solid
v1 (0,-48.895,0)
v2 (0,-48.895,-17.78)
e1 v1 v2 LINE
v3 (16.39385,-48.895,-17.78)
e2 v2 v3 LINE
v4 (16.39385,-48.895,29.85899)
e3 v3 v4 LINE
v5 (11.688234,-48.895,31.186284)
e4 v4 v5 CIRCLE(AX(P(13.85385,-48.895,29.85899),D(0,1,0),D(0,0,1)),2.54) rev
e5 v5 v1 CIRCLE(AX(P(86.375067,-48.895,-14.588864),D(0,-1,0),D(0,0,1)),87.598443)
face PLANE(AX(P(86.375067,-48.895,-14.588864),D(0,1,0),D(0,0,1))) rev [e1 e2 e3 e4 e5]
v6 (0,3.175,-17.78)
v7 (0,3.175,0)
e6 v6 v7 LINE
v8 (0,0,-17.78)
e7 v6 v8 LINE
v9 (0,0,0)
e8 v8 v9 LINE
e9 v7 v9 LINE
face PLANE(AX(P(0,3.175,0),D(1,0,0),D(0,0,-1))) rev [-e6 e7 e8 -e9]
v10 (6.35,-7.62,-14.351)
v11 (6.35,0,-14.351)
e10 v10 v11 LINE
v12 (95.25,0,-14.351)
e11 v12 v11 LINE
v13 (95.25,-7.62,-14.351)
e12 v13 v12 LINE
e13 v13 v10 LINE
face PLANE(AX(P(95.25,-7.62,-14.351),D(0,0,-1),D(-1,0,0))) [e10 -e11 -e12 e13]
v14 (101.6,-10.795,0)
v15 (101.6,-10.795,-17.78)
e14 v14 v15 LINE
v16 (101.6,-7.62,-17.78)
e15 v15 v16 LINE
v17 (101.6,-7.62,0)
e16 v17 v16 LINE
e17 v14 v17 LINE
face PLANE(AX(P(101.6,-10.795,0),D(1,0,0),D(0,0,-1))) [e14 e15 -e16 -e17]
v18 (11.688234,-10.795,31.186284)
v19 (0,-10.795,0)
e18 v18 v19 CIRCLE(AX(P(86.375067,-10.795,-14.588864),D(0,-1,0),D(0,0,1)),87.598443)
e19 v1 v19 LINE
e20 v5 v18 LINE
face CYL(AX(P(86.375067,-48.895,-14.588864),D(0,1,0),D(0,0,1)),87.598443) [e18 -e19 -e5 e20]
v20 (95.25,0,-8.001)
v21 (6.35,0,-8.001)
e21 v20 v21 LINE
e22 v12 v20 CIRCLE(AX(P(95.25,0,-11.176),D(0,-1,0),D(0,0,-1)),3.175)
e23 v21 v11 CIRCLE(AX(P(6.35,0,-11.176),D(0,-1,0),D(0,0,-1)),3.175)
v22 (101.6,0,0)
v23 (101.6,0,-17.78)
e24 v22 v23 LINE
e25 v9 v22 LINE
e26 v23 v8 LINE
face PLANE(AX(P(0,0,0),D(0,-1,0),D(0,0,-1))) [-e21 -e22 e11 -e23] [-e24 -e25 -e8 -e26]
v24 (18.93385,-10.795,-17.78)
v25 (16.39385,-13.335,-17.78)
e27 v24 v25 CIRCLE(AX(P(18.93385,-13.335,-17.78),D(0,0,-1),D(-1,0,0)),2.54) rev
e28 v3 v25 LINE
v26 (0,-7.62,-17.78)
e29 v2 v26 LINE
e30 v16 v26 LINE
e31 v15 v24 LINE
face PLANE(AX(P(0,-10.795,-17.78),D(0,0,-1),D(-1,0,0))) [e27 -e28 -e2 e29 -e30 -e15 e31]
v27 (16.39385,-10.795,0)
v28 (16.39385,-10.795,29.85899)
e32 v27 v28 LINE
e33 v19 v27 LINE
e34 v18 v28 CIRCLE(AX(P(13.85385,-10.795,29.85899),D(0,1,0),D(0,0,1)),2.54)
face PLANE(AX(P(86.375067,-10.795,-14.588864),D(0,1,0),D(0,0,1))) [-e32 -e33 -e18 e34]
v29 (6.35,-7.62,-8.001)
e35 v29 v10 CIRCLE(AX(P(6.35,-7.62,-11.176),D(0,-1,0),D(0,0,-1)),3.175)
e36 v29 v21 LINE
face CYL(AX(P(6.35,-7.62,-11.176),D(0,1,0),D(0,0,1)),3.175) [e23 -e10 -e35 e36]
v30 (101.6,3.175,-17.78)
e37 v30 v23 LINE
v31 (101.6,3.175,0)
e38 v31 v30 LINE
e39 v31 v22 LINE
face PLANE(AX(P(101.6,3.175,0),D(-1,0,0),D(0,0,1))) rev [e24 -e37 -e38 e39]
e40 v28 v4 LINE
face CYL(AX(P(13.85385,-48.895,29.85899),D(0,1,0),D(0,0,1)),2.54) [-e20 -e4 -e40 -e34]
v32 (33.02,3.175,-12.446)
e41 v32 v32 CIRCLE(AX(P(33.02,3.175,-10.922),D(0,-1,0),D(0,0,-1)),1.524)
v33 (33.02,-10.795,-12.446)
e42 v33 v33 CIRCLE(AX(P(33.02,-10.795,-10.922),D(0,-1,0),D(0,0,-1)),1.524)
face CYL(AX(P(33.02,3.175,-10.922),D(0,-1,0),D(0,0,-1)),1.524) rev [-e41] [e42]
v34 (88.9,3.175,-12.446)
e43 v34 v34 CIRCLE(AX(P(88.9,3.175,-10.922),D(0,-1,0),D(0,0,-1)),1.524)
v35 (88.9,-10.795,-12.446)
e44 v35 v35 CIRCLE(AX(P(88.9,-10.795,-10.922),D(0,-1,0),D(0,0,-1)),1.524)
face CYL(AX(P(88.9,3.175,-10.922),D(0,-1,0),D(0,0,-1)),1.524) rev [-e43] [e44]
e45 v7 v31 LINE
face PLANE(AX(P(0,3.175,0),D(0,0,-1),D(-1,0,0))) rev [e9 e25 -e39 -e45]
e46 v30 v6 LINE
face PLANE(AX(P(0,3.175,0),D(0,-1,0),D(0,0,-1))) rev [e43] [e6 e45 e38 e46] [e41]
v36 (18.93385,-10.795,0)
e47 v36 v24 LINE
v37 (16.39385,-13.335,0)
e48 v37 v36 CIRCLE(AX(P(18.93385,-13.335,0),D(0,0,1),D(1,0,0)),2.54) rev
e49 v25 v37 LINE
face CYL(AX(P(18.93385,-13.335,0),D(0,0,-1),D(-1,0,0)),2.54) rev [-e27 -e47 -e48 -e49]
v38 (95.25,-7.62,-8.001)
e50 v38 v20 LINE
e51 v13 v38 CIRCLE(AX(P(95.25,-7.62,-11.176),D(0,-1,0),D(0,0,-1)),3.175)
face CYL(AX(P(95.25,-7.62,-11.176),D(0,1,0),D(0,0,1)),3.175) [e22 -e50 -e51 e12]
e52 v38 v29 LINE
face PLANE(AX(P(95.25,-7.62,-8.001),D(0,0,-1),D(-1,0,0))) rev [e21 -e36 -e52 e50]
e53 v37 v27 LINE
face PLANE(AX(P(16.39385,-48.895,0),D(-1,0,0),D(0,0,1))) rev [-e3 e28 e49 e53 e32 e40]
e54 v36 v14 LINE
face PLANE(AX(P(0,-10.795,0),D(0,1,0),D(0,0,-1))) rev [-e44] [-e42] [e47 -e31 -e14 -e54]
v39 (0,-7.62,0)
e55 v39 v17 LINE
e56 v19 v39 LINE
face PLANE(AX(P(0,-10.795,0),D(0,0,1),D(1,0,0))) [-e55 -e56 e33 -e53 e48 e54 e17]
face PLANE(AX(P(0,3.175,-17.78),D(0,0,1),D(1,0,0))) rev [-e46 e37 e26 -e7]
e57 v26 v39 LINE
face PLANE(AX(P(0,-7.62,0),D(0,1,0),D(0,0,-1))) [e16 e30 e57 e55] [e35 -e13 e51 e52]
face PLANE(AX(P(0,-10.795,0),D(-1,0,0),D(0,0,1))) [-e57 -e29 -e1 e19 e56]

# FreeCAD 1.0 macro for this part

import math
import FreeCAD as App
import Part
import Sketcher
from FreeCAD import Vector
Q = App.Units.Quantity


def edges_at(feature, points):
    """Names of the edges that pass closest to the given points."""
    edges = feature.Shape.Edges
    near = lambda p: min(range(len(edges)), key=lambda i: edges[i].distToShape(Part.Vertex(*p))[0])
    return sorted({f"Edge{near(p) + 1}" for p in points})

doc = App.newDocument("Part")
body = doc.addObject("PartDesign::Body", "Body")

# Sketch on XZ plane
sketch1 = body.newObject("Sketcher::SketchObject", "Sketch")
sketch1.AttachmentSupport = (doc.getObject("XZ_Plane"), [""])
sketch1.MapMode = "FlatFace"
sketch1.addGeometry(Part.LineSegment(Vector(0, -18, 0), Vector(0, 0, 0)), False)
sketch1.addGeometry(Part.LineSegment(Vector(0, 0, 0), Vector(102, 0, 0)), False)
sketch1.addGeometry(Part.LineSegment(Vector(102, 0, 0), Vector(102, -18, 0)), False)
sketch1.addGeometry(Part.LineSegment(Vector(102, -18, 0), Vector(0, -18, 0)), False)
sketch1.addConstraint(Sketcher.Constraint("Coincident", 0, 2, 1, 1))
sketch1.addConstraint(Sketcher.Constraint("Coincident", 1, 2, 2, 1))
sketch1.addConstraint(Sketcher.Constraint("Coincident", 2, 2, 3, 1))
sketch1.addConstraint(Sketcher.Constraint("Coincident", 3, 2, 0, 1))
sketch1.addConstraint(Sketcher.Constraint("Vertical", 0))
sketch1.addConstraint(Sketcher.Constraint("Horizontal", 1))
sketch1.addConstraint(Sketcher.Constraint("Vertical", 2))
sketch1.addConstraint(Sketcher.Constraint("Horizontal", 3))
sketch1.addConstraint(Sketcher.Constraint("Coincident", 0, 2, -1, 1))
sketch1.addConstraint(Sketcher.Constraint("DistanceX", 1, 1, 1, 2, Q("4 in")))
sketch1.addConstraint(Sketcher.Constraint("DistanceY", 0, 1, 0, 2, Q("0.7 in")))
pad1 = body.newObject("PartDesign::Pad", "Pad")
pad1.Profile = sketch1
pad1.Length = Q("0.125 in")
pad1.Reversed = True

# Sketch on XZ plane
sketch2 = body.newObject("Sketcher::SketchObject", "Sketch001")
sketch2.AttachmentSupport = (doc.getObject("XZ_Plane"), [""])
sketch2.MapMode = "FlatFace"
sketch2.addGeometry(Part.LineSegment(Vector(6.3, -14.4, 0), Vector(95.2, -14.4, 0)), False)
sketch2.addGeometry(Part.ArcOfCircle(Part.Circle(Vector(95.2, -11.2, 0), Vector(0, 0, 1), 3.2), math.radians(-90), math.radians(90)), False)
sketch2.addGeometry(Part.LineSegment(Vector(95.2, -8, 0), Vector(6.3, -8, 0)), False)
sketch2.addGeometry(Part.ArcOfCircle(Part.Circle(Vector(6.3, -11.2, 0), Vector(0, 0, 1), 3.2), math.radians(90), math.radians(270)), False)
sketch2.addConstraint(Sketcher.Constraint("Tangent", 0, 2, 1, 1))
sketch2.addConstraint(Sketcher.Constraint("Tangent", 1, 2, 2, 1))
sketch2.addConstraint(Sketcher.Constraint("Tangent", 2, 2, 3, 1))
sketch2.addConstraint(Sketcher.Constraint("Tangent", 3, 2, 0, 1))
sketch2.addConstraint(Sketcher.Constraint("Horizontal", 0))
sketch2.addConstraint(Sketcher.Constraint("Horizontal", 2))
sketch2.addConstraint(Sketcher.Constraint("DistanceX", 0, 1, 0, 2, Q("3.5 in")))
sketch2.addConstraint(Sketcher.Constraint("Radius", 1, Q("0.125 in")))
sketch2.addConstraint(Sketcher.Constraint("DistanceX", -1, 1, 1, 3, Q("3.75 in")))
sketch2.addConstraint(Sketcher.Constraint("DistanceY", 1, 3, -1, 1, Q("0.44 in")))
pad2 = body.newObject("PartDesign::Pad", "Pad001")
pad2.Profile = sketch2
pad2.Length = Q("0.3 in")
doc.recompute()

datumplane = body.newObject("PartDesign::Plane", "DatumPlane")
datumplane.AttachmentSupport = (doc.getObject("XZ_Plane"), [""])
datumplane.MapMode = "FlatFace"
datumplane.AttachmentOffset = App.Placement(Vector(0, 0, 0.15 * 25.4), App.Rotation())
mirrored = body.newObject("PartDesign::Mirrored", "Mirrored")
mirrored.Originals = [pad1]
mirrored.MirrorPlane = (datumplane, [""])
body.Tip = mirrored

# Sketch on XZ plane
sketch3 = body.newObject("Sketcher::SketchObject", "Sketch002")
sketch3.AttachmentSupport = (doc.getObject("XZ_Plane"), [""])
sketch3.MapMode = "FlatFace"
sketch3.AttachmentOffset = App.Placement(Vector(0, 0, 0.425 * 25.4), App.Rotation())
sketch3.addGeometry(Part.LineSegment(Vector(0, -18, 0), Vector(16, -18, 0)), False)
sketch3.addGeometry(Part.LineSegment(Vector(16, -18, 0), Vector(16, 38, 0)), False)
sketch3.addGeometry(Part.ArcOfCircle(Part.Circle(Vector(86, -15, 0), Vector(0, 0, 1), 88), math.radians(143), math.radians(170)), False)
sketch3.addGeometry(Part.LineSegment(Vector(0, 0, 0), Vector(0, -18, 0)), False)
sketch3.addConstraint(Sketcher.Constraint("Coincident", 0, 2, 1, 1))
sketch3.addConstraint(Sketcher.Constraint("Coincident", 1, 2, 2, 1))
sketch3.addConstraint(Sketcher.Constraint("Coincident", 2, 2, 3, 1))
sketch3.addConstraint(Sketcher.Constraint("Coincident", 3, 2, 0, 1))
sketch3.addConstraint(Sketcher.Constraint("Horizontal", 0))
sketch3.addConstraint(Sketcher.Constraint("Vertical", 1))
sketch3.addConstraint(Sketcher.Constraint("Vertical", 3))
sketch3.addConstraint(Sketcher.Constraint("Coincident", 2, 2, -1, 1))
sketch3.addConstraint(Sketcher.Constraint("DistanceY", 1, 1, 1, 2, Q("2.2 in")))
sketch3.addConstraint(Sketcher.Constraint("DistanceY", 3, 2, 3, 1, Q("0.7 in")))
sketch3.addConstraint(Sketcher.Constraint("Radius", 2, Q("87.598443 mm")))
sketch3.addConstraint(Sketcher.Constraint("DistanceX", 0, 1, 0, 2, Q("16.39385 mm")))
pad3 = body.newObject("PartDesign::Pad", "Pad002")
pad3.Profile = sketch3
pad3.Length = Q("1.5 in")
doc.recompute()

fillet = body.newObject("PartDesign::Fillet", "Fillet")
fillet.Base = (pad3, edges_at(pad3, [(16.394, -10.795, -8.89)]))
fillet.Radius = Q("0.1 in")
doc.recompute()

fillet2 = body.newObject("PartDesign::Fillet", "Fillet001")
fillet2.Base = (fillet, edges_at(fillet, [(16.394, -29.845, 38.1)]))
fillet2.Radius = Q("0.1 in")

# Sketch on XZ plane
sketch4 = body.newObject("Sketcher::SketchObject", "Sketch003")
sketch4.AttachmentSupport = (doc.getObject("XZ_Plane"), [""])
sketch4.MapMode = "FlatFace"
sketch4.AttachmentOffset = App.Placement(Vector(0, 0, 0.425 * 25.4), App.Rotation())
sketch4.addGeometry(Part.Circle(Vector(88.9, -10.9, 0), Vector(0, 0, 1), 1.5), False)
sketch4.addGeometry(Part.Circle(Vector(33, -10.9, 0), Vector(0, 0, 1), 1.5), False)
sketch4.addConstraint(Sketcher.Constraint("Equal", 0, 1))
sketch4.addConstraint(Sketcher.Constraint("Horizontal", 0, 3, 1, 3))
sketch4.addConstraint(Sketcher.Constraint("Diameter", 0, Q("0.12 in")))
sketch4.addConstraint(Sketcher.Constraint("DistanceX", -1, 1, 0, 3, Q("3.5 in")))
sketch4.addConstraint(Sketcher.Constraint("DistanceX", -1, 1, 1, 3, Q("1.3 in")))
sketch4.addConstraint(Sketcher.Constraint("DistanceY", 0, 3, -1, 1, Q("0.43 in")))
pocket1 = body.newObject("PartDesign::Pocket", "Pocket")
pocket1.Profile = sketch4
pocket1.Type = "ThroughAll"

doc.recompute()
